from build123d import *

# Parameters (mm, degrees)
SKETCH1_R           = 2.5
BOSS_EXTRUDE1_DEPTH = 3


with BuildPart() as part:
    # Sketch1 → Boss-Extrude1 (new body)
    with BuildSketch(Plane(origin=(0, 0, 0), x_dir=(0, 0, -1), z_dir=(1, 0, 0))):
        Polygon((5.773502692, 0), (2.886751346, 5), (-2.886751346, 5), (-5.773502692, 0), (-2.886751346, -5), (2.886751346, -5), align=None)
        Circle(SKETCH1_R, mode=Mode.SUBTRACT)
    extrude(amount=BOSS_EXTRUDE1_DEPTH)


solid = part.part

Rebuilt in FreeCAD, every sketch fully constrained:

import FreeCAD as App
import Part
import Sketcher
Q = App.Units.Quantity


def add_polygon(sketch, points):
    """Adds a closed chain of lines whose ends are joined by coincident constraints."""
    first, n = sketch.GeometryCount, len(points)
    for a, b in zip(points, points[1:] + points[:1]):
        sketch.addGeometry(Part.LineSegment(App.Vector(*a, 0), App.Vector(*b, 0)), False)
    for i in range(n):
        sketch.addConstraint(Sketcher.Constraint("Coincident", first + i, 2, first + (i + 1) % n, 1))

doc = App.newDocument("Part")
body = doc.addObject("PartDesign::Body", "Body")

sketch1 = doc.addObject("Sketcher::SketchObject", "Sketch")
body.addObject(sketch1)
sketch1.AttachmentSupport = (doc.YZ_Plane, [""])
sketch1.MapMode = "FlatFace"
add_polygon(sketch1, [(0, -5.8), (5, -2.9), (5, 2.9), (0, 5.8), (-5, 2.9), (-5, -2.9)])
sketch1.addGeometry(Part.Circle(App.Vector(0, 0, 0), App.Vector(0, 0, 1), 2.5), False)
sketch1.addConstraint(Sketcher.Constraint("Vertical", 1))
sketch1.addConstraint(Sketcher.Constraint("Vertical", 4))
sketch1.addConstraint(Sketcher.Constraint("Coincident", 6, 3, -1, 1))
sketch1.addConstraint(Sketcher.Constraint("Symmetric", 0, 2, 3, 2, -1, 1))
sketch1.addConstraint(Sketcher.Constraint("Symmetric", 2, 2, 5, 2, -1, 1))
sketch1.addConstraint(Sketcher.Constraint("PointOnObject", 2, 2, -2))
sketch1.addConstraint(Sketcher.Constraint("Parallel", 2, 5))
sketch1.addConstraint(Sketcher.Constraint("Horizontal", 1, 2, 3, 2))
sketch1.addConstraint(Sketcher.Constraint("Diameter", 6, 5.0))
sketch1.addConstraint(Sketcher.Constraint("Angle", 0, Q("30 deg")))
sketch1.addConstraint(Sketcher.Constraint("DistanceX", -1, 1, 0, 2, 5.0))
sketch1.addConstraint(Sketcher.Constraint("DistanceY", 1, 1, 1, 2, 5.773503))
pad1 = doc.addObject("PartDesign::Pad", "Pad")
body.addObject(pad1)
pad1.Profile = sketch1
pad1.Length = 3

doc.recompute()
